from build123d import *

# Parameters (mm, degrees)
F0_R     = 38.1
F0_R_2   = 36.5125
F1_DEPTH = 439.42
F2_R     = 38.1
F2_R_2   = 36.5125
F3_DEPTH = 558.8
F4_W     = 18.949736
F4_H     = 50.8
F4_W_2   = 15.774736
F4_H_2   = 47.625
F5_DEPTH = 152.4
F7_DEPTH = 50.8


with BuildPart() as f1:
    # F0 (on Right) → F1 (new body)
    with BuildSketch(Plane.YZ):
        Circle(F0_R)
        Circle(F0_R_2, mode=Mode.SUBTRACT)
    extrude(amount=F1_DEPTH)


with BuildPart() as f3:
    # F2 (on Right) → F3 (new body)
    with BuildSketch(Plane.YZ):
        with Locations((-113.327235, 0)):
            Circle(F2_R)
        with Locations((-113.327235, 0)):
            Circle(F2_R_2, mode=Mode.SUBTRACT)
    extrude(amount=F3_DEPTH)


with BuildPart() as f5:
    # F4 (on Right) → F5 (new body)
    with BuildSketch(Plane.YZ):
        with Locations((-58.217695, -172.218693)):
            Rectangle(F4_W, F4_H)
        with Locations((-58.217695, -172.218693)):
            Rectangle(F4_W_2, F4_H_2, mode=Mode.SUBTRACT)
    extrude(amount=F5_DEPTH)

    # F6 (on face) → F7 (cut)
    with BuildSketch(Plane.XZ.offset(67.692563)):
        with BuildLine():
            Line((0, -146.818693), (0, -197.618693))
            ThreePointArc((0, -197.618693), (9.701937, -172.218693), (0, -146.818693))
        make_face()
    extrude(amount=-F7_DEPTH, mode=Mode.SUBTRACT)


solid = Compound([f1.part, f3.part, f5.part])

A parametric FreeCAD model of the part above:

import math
import FreeCAD as App
import Part
import Sketcher
from FreeCAD import Vector
Q = App.Units.Quantity


def add_polygon(sketch, points):
    """Adds a closed chain of lines whose ends are joined by coincident constraints."""
    first, n = sketch.GeometryCount, len(points)
    for a, b in zip(points, points[1:] + points[:1]):
        sketch.addGeometry(Part.LineSegment(App.Vector(*a, 0), App.Vector(*b, 0)), False)
    for i in range(n):
        sketch.addConstraint(Sketcher.Constraint("Coincident", first + i, 2, first + (i + 1) % n, 1))

doc = App.newDocument("Part")
body = doc.addObject("PartDesign::Body", "Body")

# Sketch on YZ plane
sketch1 = body.newObject("Sketcher::SketchObject", "Sketch")
sketch1.AttachmentSupport = (doc.getObject("YZ_Plane"), [""])
sketch1.MapMode = "FlatFace"
sketch1.addGeometry(Part.Circle(Vector(0, 0, 0), Vector(0, 0, 1), 38), False)
sketch1.addGeometry(Part.Circle(Vector(0, 0, 0), Vector(0, 0, 1), 37), False)
sketch1.addConstraint(Sketcher.Constraint("Coincident", 0, 3, -1, 1))
sketch1.addConstraint(Sketcher.Constraint("Coincident", 1, 3, -1, 1))
sketch1.addConstraint(Sketcher.Constraint("Diameter", 0, Q("3 in")))
sketch1.addConstraint(Sketcher.Constraint("Diameter", 1, Q("2.875 in")))
pad1 = body.newObject("PartDesign::Pad", "Pad")
pad1.Profile = sketch1
pad1.Length = Q("17.3 in")
body2 = doc.addObject("PartDesign::Body", "Body001")

# Sketch on YZ plane
sketch2 = body2.newObject("Sketcher::SketchObject", "Sketch001")
sketch2.AttachmentSupport = (doc.getObject("YZ_Plane001"), [""])
sketch2.MapMode = "FlatFace"
sketch2.addGeometry(Part.Circle(Vector(-113, 0, 0), Vector(0, 0, 1), 38), False)
sketch2.addGeometry(Part.Circle(Vector(-113, 0, 0), Vector(0, 0, 1), 37), False)
sketch2.addConstraint(Sketcher.Constraint("Coincident", 1, 3, 0, 3))
sketch2.addConstraint(Sketcher.Constraint("PointOnObject", 0, 3, -1))
sketch2.addConstraint(Sketcher.Constraint("Diameter", 0, Q("3 in")))
sketch2.addConstraint(Sketcher.Constraint("Diameter", 1, Q("2.875 in")))
sketch2.addConstraint(Sketcher.Constraint("DistanceX", 0, 3, -1, 1, Q("113.327235 mm")))
pad2 = body2.newObject("PartDesign::Pad", "Pad001")
pad2.Profile = sketch2
pad2.Length = Q("22 in")
body3 = doc.addObject("PartDesign::Body", "Body002")

# Sketch on YZ plane
sketch3 = body3.newObject("Sketcher::SketchObject", "Sketch002")
sketch3.AttachmentSupport = (doc.getObject("YZ_Plane002"), [""])
sketch3.MapMode = "FlatFace"
add_polygon(sketch3, [(-68, -147), (-68, -198), (-49, -198), (-49, -147)])  # lines 0-3
add_polygon(sketch3, [(-50, -196), (-66, -196), (-66, -148), (-50, -148)])  # lines 4-7
sketch3.addConstraint(Sketcher.Constraint("Vertical", 0))
sketch3.addConstraint(Sketcher.Constraint("Horizontal", 1))
sketch3.addConstraint(Sketcher.Constraint("Vertical", 2))
sketch3.addConstraint(Sketcher.Constraint("Horizontal", 3))
sketch3.addConstraint(Sketcher.Constraint("Horizontal", 4))
sketch3.addConstraint(Sketcher.Constraint("Vertical", 5))
sketch3.addConstraint(Sketcher.Constraint("Horizontal", 6))
sketch3.addConstraint(Sketcher.Constraint("Vertical", 7))
sketch3.addConstraint(Sketcher.Constraint("DistanceY", 0, 2, 0, 1, Q("2 in")))
sketch3.addConstraint(Sketcher.Constraint("DistanceY", 5, 1, 5, 2, Q("1.875 in")))
sketch3.addConstraint(Sketcher.Constraint("DistanceX", 0, 2, 4, 2, Q("0.0625 in")))
sketch3.addConstraint(Sketcher.Constraint("DistanceY", 0, 2, 4, 2, Q("0.0625 in")))
sketch3.addConstraint(Sketcher.Constraint("DistanceX", 6, 2, 2, 2, Q("0.0625 in")))
sketch3.addConstraint(Sketcher.Constraint("DistanceX", 1, 1, 1, 2, Q("18.949736 mm")))
sketch3.addConstraint(Sketcher.Constraint("DistanceX", 0, 2, -1, 1, Q("67.692563 mm")))
sketch3.addConstraint(Sketcher.Constraint("DistanceY", 0, 2, -1, 1, Q("197.618693 mm")))
pad3 = body3.newObject("PartDesign::Pad", "Pad002")
pad3.Profile = sketch3
pad3.Length = Q("6 in")

# Sketch on XZ plane
sketch4 = body3.newObject("Sketcher::SketchObject", "Sketch003")
sketch4.AttachmentSupport = (doc.getObject("XZ_Plane002"), [""])
sketch4.MapMode = "FlatFace"
sketch4.AttachmentOffset = App.Placement(Vector(0, 0, 67.692563), App.Rotation())
sketch4.addGeometry(Part.LineSegment(Vector(0, -147, 0), Vector(0, -198, 0)), False)
sketch4.addGeometry(Part.ArcOfCircle(Part.Circle(Vector(-28, -172, 0), Vector(0, 0, 1), 38), math.radians(-42), math.radians(42)), False)
sketch4.addConstraint(Sketcher.Constraint("Coincident", 0, 1, 1, 2))
sketch4.addConstraint(Sketcher.Constraint("Coincident", 1, 1, 0, 2))
sketch4.addConstraint(Sketcher.Constraint("Vertical", 0))
sketch4.addConstraint(Sketcher.Constraint("PointOnObject", 0, 1, -2))
sketch4.addConstraint(Sketcher.Constraint("Radius", 1, Q("1.5 in")))
sketch4.addConstraint(Sketcher.Constraint("DistanceY", 0, 2, 0, 1, Q("2 in")))
sketch4.addConstraint(Sketcher.Constraint("DistanceY", 1, 3, -1, 1, Q("172.218693 mm")))
pocket1 = body3.newObject("PartDesign::Pocket", "Pocket")
pocket1.Profile = sketch4
pocket1.Length = Q("2 in")

doc.recompute()
